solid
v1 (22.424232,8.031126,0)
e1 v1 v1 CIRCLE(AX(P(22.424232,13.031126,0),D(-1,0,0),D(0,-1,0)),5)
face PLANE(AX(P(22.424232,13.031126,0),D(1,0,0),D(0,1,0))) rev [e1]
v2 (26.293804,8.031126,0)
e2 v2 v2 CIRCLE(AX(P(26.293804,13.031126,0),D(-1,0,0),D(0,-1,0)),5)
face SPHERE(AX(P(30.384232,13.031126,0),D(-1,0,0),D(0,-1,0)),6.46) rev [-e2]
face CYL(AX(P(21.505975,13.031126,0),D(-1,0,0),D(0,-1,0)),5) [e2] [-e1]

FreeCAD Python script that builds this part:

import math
import FreeCAD as App
import Part
import Sketcher
from FreeCAD import Vector
Q = App.Units.Quantity

doc = App.newDocument("Part")
body = doc.addObject("PartDesign::Body", "Body")

sketch1 = body.newObject("Sketcher::SketchObject", "Sketch")
sketch1.AttachmentSupport = (doc.getObject("XY_Plane"), [""])
sketch1.MapMode = "FlatFace"
sketch1.addGeometry([
    Part.LineSegment(Vector(22.4, 18, 0), Vector(22.4, 13, 0)),
    Part.LineSegment(Vector(22.4, 13, 0), Vector(23.9, 13, 0)),
    Part.ArcOfCircle(Part.Circle(Vector(30.4, 13, 0), Vector(0, 0, 1), 6.5), math.radians(129), math.radians(180)),
    Part.LineSegment(Vector(26.3, 18, 0), Vector(22.4, 18, 0)),
], False)
sketch1.addGeometry(Part.LineSegment(Vector(22.4, 13, 0), Vector(30.4, 13, 0)), True)
sketch1.addConstraint([
    Sketcher.Constraint("Coincident", 0, 2, 1, 1),
    Sketcher.Constraint("Coincident", 1, 2, 2, 2),
    Sketcher.Constraint("Coincident", 2, 1, 3, 1),
    Sketcher.Constraint("Coincident", 3, 2, 0, 1),
    Sketcher.Constraint("Vertical", 0),
    Sketcher.Constraint("Horizontal", 1),
    Sketcher.Constraint("Horizontal", 3),
    Sketcher.Constraint("Horizontal", 4),
    Sketcher.Constraint("Coincident", 4, 1, 0, 2),
    Sketcher.Constraint("Coincident", 4, 2, 2, 3),
    Sketcher.Constraint("DistanceY", 0, 2, 0, 1, Q("5 mm")),
    Sketcher.Constraint("Radius", 2, Q("6.46 mm")),
    Sketcher.Constraint("DistanceX", 1, 1, 1, 2, Q("1.5 mm")),
    Sketcher.Constraint("DistanceX", -1, 1, 2, 3, Q("30.384232 mm")),
    Sketcher.Constraint("DistanceY", -1, 1, 2, 3, Q("13.031126 mm")),
])
revolution = body.newObject("PartDesign::Revolution", "Revolution")
revolution.Profile = sketch1
revolution.ReferenceAxis = (sketch1, ["Axis0"])
revolution.Angle = 360

doc.recompute()
